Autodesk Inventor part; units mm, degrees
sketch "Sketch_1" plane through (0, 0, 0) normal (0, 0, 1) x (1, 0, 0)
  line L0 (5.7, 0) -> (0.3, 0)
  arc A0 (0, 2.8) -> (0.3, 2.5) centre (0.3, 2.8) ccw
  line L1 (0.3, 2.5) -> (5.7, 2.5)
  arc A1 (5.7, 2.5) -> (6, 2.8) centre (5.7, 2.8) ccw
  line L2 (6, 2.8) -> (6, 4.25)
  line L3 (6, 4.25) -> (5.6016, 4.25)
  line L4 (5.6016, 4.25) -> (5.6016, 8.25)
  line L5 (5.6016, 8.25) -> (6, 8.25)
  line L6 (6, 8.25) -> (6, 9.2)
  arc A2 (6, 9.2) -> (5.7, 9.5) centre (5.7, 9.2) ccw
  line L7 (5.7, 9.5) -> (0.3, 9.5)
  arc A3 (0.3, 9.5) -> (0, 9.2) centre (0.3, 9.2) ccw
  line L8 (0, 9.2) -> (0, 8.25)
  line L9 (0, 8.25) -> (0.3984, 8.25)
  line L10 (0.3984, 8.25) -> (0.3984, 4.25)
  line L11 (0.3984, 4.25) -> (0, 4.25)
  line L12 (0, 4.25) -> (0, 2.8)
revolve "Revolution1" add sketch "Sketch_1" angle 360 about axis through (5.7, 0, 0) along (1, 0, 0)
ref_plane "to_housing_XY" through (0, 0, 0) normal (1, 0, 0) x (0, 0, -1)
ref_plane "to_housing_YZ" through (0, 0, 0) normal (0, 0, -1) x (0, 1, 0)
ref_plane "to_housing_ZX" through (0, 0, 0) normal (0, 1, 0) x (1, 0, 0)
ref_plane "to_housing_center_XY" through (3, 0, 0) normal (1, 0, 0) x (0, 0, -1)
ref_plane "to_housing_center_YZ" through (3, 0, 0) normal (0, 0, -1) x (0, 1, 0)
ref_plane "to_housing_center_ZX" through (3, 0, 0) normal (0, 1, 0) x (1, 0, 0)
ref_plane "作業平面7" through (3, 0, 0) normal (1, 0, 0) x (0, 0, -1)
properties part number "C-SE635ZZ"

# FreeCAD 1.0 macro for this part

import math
import FreeCAD as App
import Part
import Sketcher

V = App.Vector
Q = App.Units.Quantity

doc = App.newDocument("Part")
params = doc.addObject("Spreadsheet::Sheet", "Params")
for row, (alias, value) in enumerate([
    ("sketch1_radius", "0.3 mm"),
    ("sketch1_height", "4 mm"),
    ("sketch1_width", "5.4 mm"),
    ("sketch1_height2", "1.45 mm"),
    ("sketch1_height3", "0.95 mm"),
    ("revolution_angle", "360 deg"),
], start=1):
    params.set(f"A{row}", alias)
    params.set(f"B{row}", "=" + value)
    params.setAlias(f"B{row}", alias)

body = doc.addObject("PartDesign::Body", "Body")

sketch1 = body.newObject("Sketcher::SketchObject", "Sketch")
sketch1.AttachmentSupport = (doc.getObject("XY_Plane"), [""])
sketch1.MapMode = "FlatFace"
sketch1.addGeometry([
    Part.LineSegment(V(0, 4.25, 0), V(0, 2.8, 0)),
    Part.ArcOfCircle(Part.Circle(V(0.3, 2.8, 0), V(0, 0, 1), 0.3), math.radians(180), math.radians(270)),
    Part.LineSegment(V(0.3, 2.5, 0), V(5.7, 2.5, 0)),
    Part.ArcOfCircle(Part.Circle(V(5.7, 2.8, 0), V(0, 0, 1), 0.3), math.radians(-90), math.radians(0)),
    Part.LineSegment(V(6, 2.8, 0), V(6, 4.25, 0)),
    Part.LineSegment(V(6, 4.25, 0), V(5.6016, 4.25, 0)),
    Part.LineSegment(V(5.6016, 4.25, 0), V(5.6016, 8.25, 0)),
    Part.LineSegment(V(5.6016, 8.25, 0), V(6, 8.25, 0)),
    Part.LineSegment(V(6, 8.25, 0), V(6, 9.2, 0)),
    Part.ArcOfCircle(Part.Circle(V(5.7, 9.2, 0), V(0, 0, 1), 0.3), math.radians(0), math.radians(90)),
    Part.LineSegment(V(5.7, 9.5, 0), V(0.3, 9.5, 0)),
    Part.ArcOfCircle(Part.Circle(V(0.3, 9.2, 0), V(0, 0, 1), 0.3), math.radians(90), math.radians(180)),
    Part.LineSegment(V(0, 9.2, 0), V(0, 8.25, 0)),
    Part.LineSegment(V(0, 8.25, 0), V(0.3984, 8.25, 0)),
    Part.LineSegment(V(0.3984, 8.25, 0), V(0.3984, 4.25, 0)),
    Part.LineSegment(V(0.3984, 4.25, 0), V(0, 4.25, 0)),
], False)
sketch1.addConstraint([
    Sketcher.Constraint("Tangent", 0, 2, 1, 1),
    Sketcher.Constraint("Tangent", 1, 2, 2, 1),
    Sketcher.Constraint("Tangent", 2, 2, 3, 1),
    Sketcher.Constraint("Tangent", 3, 2, 4, 1),
    Sketcher.Constraint("Coincident", 4, 2, 5, 1),
    Sketcher.Constraint("Coincident", 5, 2, 6, 1),
    Sketcher.Constraint("Coincident", 6, 2, 7, 1),
    Sketcher.Constraint("Coincident", 7, 2, 8, 1),
    Sketcher.Constraint("Tangent", 8, 2, 9, 1),
    Sketcher.Constraint("Tangent", 9, 2, 10, 1),
    Sketcher.Constraint("Tangent", 10, 2, 11, 1),
    Sketcher.Constraint("Tangent", 11, 2, 12, 1),
    Sketcher.Constraint("Coincident", 12, 2, 13, 1),
    Sketcher.Constraint("Coincident", 13, 2, 14, 1),
    Sketcher.Constraint("Coincident", 14, 2, 15, 1),
    Sketcher.Constraint("Coincident", 15, 2, 0, 1),
    Sketcher.Constraint("Vertical", 0),
    Sketcher.Constraint("Horizontal", 2),
    Sketcher.Constraint("Vertical", 4),
    Sketcher.Constraint("Horizontal", 5),
    Sketcher.Constraint("Vertical", 6),
    Sketcher.Constraint("Horizontal", 7),
    Sketcher.Constraint("Vertical", 8),
    Sketcher.Constraint("Horizontal", 10),
    Sketcher.Constraint("Vertical", 12),
    Sketcher.Constraint("Horizontal", 13),
    Sketcher.Constraint("Vertical", 14),
    Sketcher.Constraint("Horizontal", 15),
    Sketcher.Constraint("Equal", 1, 3),
    Sketcher.Constraint("Equal", 3, 9),
    Sketcher.Constraint("Equal", 9, 11),
    Sketcher.Constraint("PointOnObject", 0, 2, -2),
    Sketcher.Constraint("PointOnObject", 11, 2, -2),
    Sketcher.Constraint("Horizontal", 7, 2, 12, 2),
    Sketcher.Constraint("Horizontal", 5, 2, 14, 2),
    Sketcher.Constraint("Vertical", 3, 3, 9, 3),
    Sketcher.Constraint("Equal", 7, 13),
    Sketcher.Constraint("Radius", 1, Q("0.3 mm")),
    Sketcher.Constraint("DistanceY", 6, 1, 6, 2, Q("4 mm")),
    Sketcher.Constraint("DistanceX", 2, 1, 2, 2, Q("5.4 mm")),
    Sketcher.Constraint("DistanceY", 0, 2, 0, 1, Q("1.45 mm")),
    Sketcher.Constraint("DistanceY", 8, 1, 8, 2, Q("0.95 mm")),
    Sketcher.Constraint("DistanceY", -1, 1, 1, 3, Q("2.8 mm")),
    Sketcher.Constraint("DistanceX", 5, 2, 5, 1, Q("0.3984 mm")),
])
sketch1.setExpression("Constraints[37]", "Params.sketch1_radius")
sketch1.setExpression("Constraints[38]", "Params.sketch1_height")
sketch1.setExpression("Constraints[39]", "Params.sketch1_width")
sketch1.setExpression("Constraints[40]", "Params.sketch1_height2")
sketch1.setExpression("Constraints[41]", "Params.sketch1_height3")
revolution = body.newObject("PartDesign::Revolution", "Revolution")
revolution.Profile = sketch1
revolution.ReferenceAxis = (sketch1, ["H_Axis"])
revolution.setExpression("Angle", "Params.revolution_angle")

doc.recompute()
